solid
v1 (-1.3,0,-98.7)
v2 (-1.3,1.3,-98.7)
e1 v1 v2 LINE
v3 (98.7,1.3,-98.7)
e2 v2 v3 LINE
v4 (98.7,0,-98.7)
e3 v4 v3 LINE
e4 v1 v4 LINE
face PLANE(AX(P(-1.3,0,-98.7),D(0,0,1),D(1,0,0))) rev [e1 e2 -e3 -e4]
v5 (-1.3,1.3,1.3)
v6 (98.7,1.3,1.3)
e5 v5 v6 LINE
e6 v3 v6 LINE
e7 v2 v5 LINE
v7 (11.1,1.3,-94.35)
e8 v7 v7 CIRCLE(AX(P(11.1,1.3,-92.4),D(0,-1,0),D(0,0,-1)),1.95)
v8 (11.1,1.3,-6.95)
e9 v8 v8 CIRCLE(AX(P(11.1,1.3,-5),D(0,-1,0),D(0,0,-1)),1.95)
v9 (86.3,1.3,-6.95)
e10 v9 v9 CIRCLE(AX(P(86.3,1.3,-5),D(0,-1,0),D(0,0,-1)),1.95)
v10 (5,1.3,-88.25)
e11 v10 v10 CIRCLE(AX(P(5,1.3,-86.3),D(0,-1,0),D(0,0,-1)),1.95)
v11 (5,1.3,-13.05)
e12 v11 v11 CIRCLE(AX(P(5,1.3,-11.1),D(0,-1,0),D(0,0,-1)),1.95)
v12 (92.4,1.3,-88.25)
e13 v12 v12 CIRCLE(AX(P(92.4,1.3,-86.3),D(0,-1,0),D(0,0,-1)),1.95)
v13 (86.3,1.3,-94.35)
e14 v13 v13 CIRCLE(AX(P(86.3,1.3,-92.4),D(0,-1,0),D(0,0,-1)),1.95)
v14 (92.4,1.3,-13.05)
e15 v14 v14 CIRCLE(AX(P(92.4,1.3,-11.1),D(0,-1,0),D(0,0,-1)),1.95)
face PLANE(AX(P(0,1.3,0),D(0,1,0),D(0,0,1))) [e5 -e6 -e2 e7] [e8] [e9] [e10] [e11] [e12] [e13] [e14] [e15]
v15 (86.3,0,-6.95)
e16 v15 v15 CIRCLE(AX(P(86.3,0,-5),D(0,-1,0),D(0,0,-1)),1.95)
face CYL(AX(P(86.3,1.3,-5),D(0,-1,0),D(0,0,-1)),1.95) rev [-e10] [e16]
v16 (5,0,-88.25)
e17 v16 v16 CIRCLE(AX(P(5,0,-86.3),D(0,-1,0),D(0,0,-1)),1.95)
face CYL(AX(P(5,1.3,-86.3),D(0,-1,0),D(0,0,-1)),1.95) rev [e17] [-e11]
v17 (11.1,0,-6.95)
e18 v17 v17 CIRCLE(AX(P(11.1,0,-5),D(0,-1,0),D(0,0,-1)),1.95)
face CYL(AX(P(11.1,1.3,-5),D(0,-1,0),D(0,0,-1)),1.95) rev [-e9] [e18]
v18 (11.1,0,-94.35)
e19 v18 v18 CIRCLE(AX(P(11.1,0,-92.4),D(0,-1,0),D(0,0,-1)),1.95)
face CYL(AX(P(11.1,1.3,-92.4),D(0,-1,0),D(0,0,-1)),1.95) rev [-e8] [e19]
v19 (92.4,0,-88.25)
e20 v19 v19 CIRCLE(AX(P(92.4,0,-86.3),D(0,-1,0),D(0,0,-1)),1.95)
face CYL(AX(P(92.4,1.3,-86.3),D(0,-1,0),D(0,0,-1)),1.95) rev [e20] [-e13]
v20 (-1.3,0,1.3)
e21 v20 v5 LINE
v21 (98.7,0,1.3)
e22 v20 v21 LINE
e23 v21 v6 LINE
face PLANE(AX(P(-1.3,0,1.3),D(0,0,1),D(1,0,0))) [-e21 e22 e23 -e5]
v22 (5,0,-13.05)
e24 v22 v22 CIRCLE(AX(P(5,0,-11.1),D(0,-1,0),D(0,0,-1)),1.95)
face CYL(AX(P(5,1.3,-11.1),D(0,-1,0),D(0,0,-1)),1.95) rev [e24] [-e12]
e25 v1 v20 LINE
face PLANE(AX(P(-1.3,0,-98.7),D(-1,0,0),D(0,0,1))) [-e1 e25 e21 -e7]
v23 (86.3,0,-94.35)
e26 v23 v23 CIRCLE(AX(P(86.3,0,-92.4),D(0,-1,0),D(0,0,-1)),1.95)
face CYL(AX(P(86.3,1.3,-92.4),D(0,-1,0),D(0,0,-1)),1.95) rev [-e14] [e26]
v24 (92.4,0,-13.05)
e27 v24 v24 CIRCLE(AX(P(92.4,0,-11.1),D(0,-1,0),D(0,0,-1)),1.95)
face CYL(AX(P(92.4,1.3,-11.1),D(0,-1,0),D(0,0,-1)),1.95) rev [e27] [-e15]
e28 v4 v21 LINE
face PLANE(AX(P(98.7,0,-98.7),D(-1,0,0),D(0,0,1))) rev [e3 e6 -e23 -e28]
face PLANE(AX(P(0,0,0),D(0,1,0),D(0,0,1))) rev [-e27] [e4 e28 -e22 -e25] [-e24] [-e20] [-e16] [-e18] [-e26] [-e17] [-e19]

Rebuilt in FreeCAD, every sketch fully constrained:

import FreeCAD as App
import Part
import Sketcher

V = App.Vector
Q = App.Units.Quantity

doc = App.newDocument("Part")
params = doc.addObject("Spreadsheet::Sheet", "Params")
for row, (alias, value) in enumerate([
    ("sketch1_width", "83 mm"),
    ("sketch1_width2", "7.2 mm"),
    ("pad1_length", "1.3 mm"),
    ("sketch2_width", "100 mm"),
    ("pad2_length", "1.3 mm"),
    ("sketch3_diameter", "3.9 mm"),
    ("pocket1_length", "1.3 mm"),
], start=1):
    params.set(f"A{row}", alias)
    params.set(f"B{row}", "=" + value)
    params.setAlias(f"B{row}", alias)

body = doc.addObject("PartDesign::Body", "Body")

sketch1 = doc.addObject("Sketcher::SketchObject", "Sketch")
body.addObject(sketch1)
sketch1.AttachmentSupport = (doc.XZ_Plane, [""])
sketch1.MapMode = "FlatFace"
sketch1.addGeometry([
    Part.LineSegment(V(7.2, -7.2, 0), V(7.2, 0, 0)),
    Part.LineSegment(V(7.2, 0, 0), V(90.2, 0, 0)),
    Part.LineSegment(V(90.2, 0, 0), V(90.2, -7.2, 0)),
    Part.LineSegment(V(90.2, -7.2, 0), V(97.4, -7.2, 0)),
    Part.LineSegment(V(97.4, -7.2, 0), V(97.4, -90.2, 0)),
    Part.LineSegment(V(97.4, -90.2, 0), V(90.2, -90.2, 0)),
    Part.LineSegment(V(90.2, -90.2, 0), V(90.2, -97.4, 0)),
    Part.LineSegment(V(90.2, -97.4, 0), V(7.2, -97.4, 0)),
    Part.LineSegment(V(7.2, -97.4, 0), V(7.2, -90.2, 0)),
    Part.LineSegment(V(7.2, -90.2, 0), V(0, -90.2, 0)),
    Part.LineSegment(V(0, -90.2, 0), V(0, -7.2, 0)),
    Part.LineSegment(V(0, -7.2, 0), V(7.2, -7.2, 0)),
], False)
sketch1.addConstraint([
    Sketcher.Constraint("Coincident", 0, 2, 1, 1),
    Sketcher.Constraint("Coincident", 1, 2, 2, 1),
    Sketcher.Constraint("Coincident", 2, 2, 3, 1),
    Sketcher.Constraint("Coincident", 3, 2, 4, 1),
    Sketcher.Constraint("Coincident", 4, 2, 5, 1),
    Sketcher.Constraint("Coincident", 5, 2, 6, 1),
    Sketcher.Constraint("Coincident", 6, 2, 7, 1),
    Sketcher.Constraint("Coincident", 7, 2, 8, 1),
    Sketcher.Constraint("Coincident", 8, 2, 9, 1),
    Sketcher.Constraint("Coincident", 9, 2, 10, 1),
    Sketcher.Constraint("Coincident", 10, 2, 11, 1),
    Sketcher.Constraint("Coincident", 11, 2, 0, 1),
    Sketcher.Constraint("Vertical", 0),
    Sketcher.Constraint("Horizontal", 1),
    Sketcher.Constraint("Vertical", 2),
    Sketcher.Constraint("Horizontal", 3),
    Sketcher.Constraint("Vertical", 4),
    Sketcher.Constraint("Horizontal", 5),
    Sketcher.Constraint("Vertical", 6),
    Sketcher.Constraint("Horizontal", 7),
    Sketcher.Constraint("Vertical", 8),
    Sketcher.Constraint("Horizontal", 9),
    Sketcher.Constraint("Vertical", 10),
    Sketcher.Constraint("Horizontal", 11),
    Sketcher.Constraint("PointOnObject", 0, 2, -1),
    Sketcher.Constraint("PointOnObject", 9, 2, -2),
    Sketcher.Constraint("Horizontal", 5, 2, 8, 2),
    Sketcher.Constraint("Horizontal", 3, 2, 10, 2),
    Sketcher.Constraint("Vertical", 2, 2, 5, 2),
    Sketcher.Constraint("Vertical", 0, 2, 7, 2),
    Sketcher.Constraint("Equal", 5, 9),
    Sketcher.Constraint("Equal", 11, 0),
    Sketcher.Constraint("Equal", 7, 4),
    Sketcher.Constraint("Equal", 2, 6),
    Sketcher.Constraint("DistanceX", 1, 1, 1, 2, Q("83 mm")),
    Sketcher.Constraint("DistanceX", 3, 1, 3, 2, Q("7.2 mm")),
])
sketch1.setExpression("Constraints[34]", "Params.sketch1_width")
sketch1.setExpression("Constraints[35]", "Params.sketch1_width2")
pad1 = doc.addObject("PartDesign::Pad", "Pad")
body.addObject(pad1)
pad1.Profile = sketch1
pad1.setExpression("Length", "Params.pad1_length")
pad1.Reversed = True

sketch2 = doc.addObject("Sketcher::SketchObject", "Sketch001")
body.addObject(sketch2)
sketch2.AttachmentSupport = (doc.XZ_Plane, [""])
sketch2.MapMode = "FlatFace"
sketch2.AttachmentOffset = App.Placement(V(0, 0, -1.3), App.Rotation())
sketch2.addGeometry([
    Part.LineSegment(V(-1.3, -98.7, 0), V(-1.3, 1.3, 0)),
    Part.LineSegment(V(-1.3, 1.3, 0), V(98.7, 1.3, 0)),
    Part.LineSegment(V(98.7, 1.3, 0), V(98.7, -98.7, 0)),
    Part.LineSegment(V(98.7, -98.7, 0), V(-1.3, -98.7, 0)),
], False)
sketch2.addConstraint([
    Sketcher.Constraint("Coincident", 0, 2, 1, 1),
    Sketcher.Constraint("Coincident", 1, 2, 2, 1),
    Sketcher.Constraint("Coincident", 2, 2, 3, 1),
    Sketcher.Constraint("Coincident", 3, 2, 0, 1),
    Sketcher.Constraint("Vertical", 0),
    Sketcher.Constraint("Horizontal", 1),
    Sketcher.Constraint("Vertical", 2),
    Sketcher.Constraint("Horizontal", 3),
    Sketcher.Constraint("Equal", 3, 0),
    Sketcher.Constraint("DistanceX", 1, 1, 1, 2, Q("100 mm")),
    Sketcher.Constraint("DistanceX", 0, 2, -1, 1, Q("1.3 mm")),
    Sketcher.Constraint("DistanceY", -1, 1, 0, 2, Q("1.3 mm")),
])
sketch2.setExpression("Constraints[9]", "Params.sketch2_width")
pad2 = doc.addObject("PartDesign::Pad", "Pad001")
body.addObject(pad2)
pad2.Profile = sketch2
pad2.setExpression("Length", "Params.pad2_length")

sketch3 = doc.addObject("Sketcher::SketchObject", "Sketch002")
body.addObject(sketch3)
sketch3.AttachmentSupport = (doc.XZ_Plane, [""])
sketch3.MapMode = "FlatFace"
sketch3.addGeometry([
    Part.Circle(V(92.4, -86.3, 0), V(0, 0, 1), 1.95),
    Part.Circle(V(86.3, -92.4, 0), V(0, 0, 1), 1.95),
    Part.Circle(V(11.1, -92.4, 0), V(0, 0, 1), 1.95),
    Part.Circle(V(5, -86.3, 0), V(0, 0, 1), 1.95),
    Part.Circle(V(5, -11.1, 0), V(0, 0, 1), 1.95),
    Part.Circle(V(11.1, -5, 0), V(0, 0, 1), 1.95),
    Part.Circle(V(86.3, -5, 0), V(0, 0, 1), 1.95),
    Part.Circle(V(92.4, -11.1, 0), V(0, 0, 1), 1.95),
], False)
sketch3.addConstraint([
    Sketcher.Constraint("Equal", 0, 1),
    Sketcher.Constraint("Equal", 1, 2),
    Sketcher.Constraint("Equal", 2, 3),
    Sketcher.Constraint("Equal", 3, 4),
    Sketcher.Constraint("Equal", 4, 5),
    Sketcher.Constraint("Equal", 5, 6),
    Sketcher.Constraint("Equal", 6, 7),
    Sketcher.Constraint("Horizontal", 1, 3, 2, 3),
    Sketcher.Constraint("Horizontal", 0, 3, 3, 3),
    Sketcher.Constraint("Horizontal", 5, 3, 6, 3),
    Sketcher.Constraint("Horizontal", 4, 3, 7, 3),
    Sketcher.Constraint("Vertical", 3, 3, 4, 3),
    Sketcher.Constraint("Vertical", 2, 3, 5, 3),
    Sketcher.Constraint("Vertical", 1, 3, 6, 3),
    Sketcher.Constraint("Vertical", 0, 3, 7, 3),
    Sketcher.Constraint("Diameter", 0, Q("3.9 mm")),
    Sketcher.Constraint("DistanceX", -1, 1, 3, 3, Q("5 mm")),
    Sketcher.Constraint("DistanceY", 5, 3, -1, 1, Q("5 mm")),
    Sketcher.Constraint("DistanceX", -1, 1, 0, 3, Q("92.4 mm")),
    Sketcher.Constraint("DistanceY", 0, 3, -1, 1, Q("86.3 mm")),
    Sketcher.Constraint("DistanceX", -1, 1, 1, 3, Q("86.3 mm")),
    Sketcher.Constraint("DistanceY", 1, 3, -1, 1, Q("92.4 mm")),
    Sketcher.Constraint("DistanceX", -1, 1, 2, 3, Q("11.1 mm")),
    Sketcher.Constraint("DistanceY", 4, 3, -1, 1, Q("11.1 mm")),
])
sketch3.setExpression("Constraints[15]", "Params.sketch3_diameter")
pocket1 = doc.addObject("PartDesign::Pocket", "Pocket")
body.addObject(pocket1)
pocket1.Profile = sketch3
pocket1.setExpression("Length", "Params.pocket1_length")

doc.recompute()
